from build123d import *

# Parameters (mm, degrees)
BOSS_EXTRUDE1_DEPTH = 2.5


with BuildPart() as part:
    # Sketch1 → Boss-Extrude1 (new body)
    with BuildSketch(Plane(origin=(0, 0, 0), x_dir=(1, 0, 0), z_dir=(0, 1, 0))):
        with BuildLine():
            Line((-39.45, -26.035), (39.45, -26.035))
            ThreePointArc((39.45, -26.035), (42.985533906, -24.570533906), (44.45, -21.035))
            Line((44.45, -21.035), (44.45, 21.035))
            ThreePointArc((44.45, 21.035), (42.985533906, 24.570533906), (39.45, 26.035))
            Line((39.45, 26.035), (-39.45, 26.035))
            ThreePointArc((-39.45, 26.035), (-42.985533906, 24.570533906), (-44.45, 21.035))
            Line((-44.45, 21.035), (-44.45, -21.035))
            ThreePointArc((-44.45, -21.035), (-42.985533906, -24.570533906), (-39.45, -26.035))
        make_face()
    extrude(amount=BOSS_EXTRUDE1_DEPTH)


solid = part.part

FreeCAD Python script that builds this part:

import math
import FreeCAD as App
import Part
import Sketcher
Q = App.Units.Quantity

doc = App.newDocument("Part")
params = doc.addObject("Spreadsheet::Sheet", "Params")
for row, (alias, value) in enumerate([
    ("sketch1_radius", "5 mm"),
    ("sketch1_width", "78.9 mm"),
    ("sketch1_height", "42.07 mm"),
    ("pad1_length", "2.5 mm"),
], start=1):
    params.set(f"A{row}", alias)
    params.set(f"B{row}", "=" + value)
    params.setAlias(f"B{row}", alias)

body = doc.addObject("PartDesign::Body", "Body")

sketch1 = body.newObject("Sketcher::SketchObject", "Sketch")
sketch1.AttachmentSupport = (doc.getObject("XZ_Plane"), [""])
sketch1.MapMode = "FlatFace"
sketch1.addGeometry([
    Part.LineSegment(App.Vector(-39.45, 26.035, 0), App.Vector(39.45, 26.035, 0)),
    Part.ArcOfCircle(Part.Circle(App.Vector(39.45, 21.035, 0), App.Vector(0, 0, 1), 5), math.radians(0), math.radians(90)),
    Part.LineSegment(App.Vector(44.45, 21.035, 0), App.Vector(44.45, -21.035, 0)),
    Part.ArcOfCircle(Part.Circle(App.Vector(39.45, -21.035, 0), App.Vector(0, 0, 1), 5), math.radians(-90), math.radians(0)),
    Part.LineSegment(App.Vector(39.45, -26.035, 0), App.Vector(-39.45, -26.035, 0)),
    Part.ArcOfCircle(Part.Circle(App.Vector(-39.45, -21.035, 0), App.Vector(0, 0, 1), 5), math.radians(180), math.radians(270)),
    Part.LineSegment(App.Vector(-44.45, -21.035, 0), App.Vector(-44.45, 21.035, 0)),
    Part.ArcOfCircle(Part.Circle(App.Vector(-39.45, 21.035, 0), App.Vector(0, 0, 1), 5), math.radians(90), math.radians(180)),
], False)
sketch1.addConstraint([
    Sketcher.Constraint("Tangent", 0, 2, 1, 2),
    Sketcher.Constraint("Tangent", 1, 1, 2, 1),
    Sketcher.Constraint("Tangent", 2, 2, 3, 2),
    Sketcher.Constraint("Tangent", 3, 1, 4, 1),
    Sketcher.Constraint("Tangent", 4, 2, 5, 2),
    Sketcher.Constraint("Tangent", 5, 1, 6, 1),
    Sketcher.Constraint("Tangent", 6, 2, 7, 2),
    Sketcher.Constraint("Tangent", 7, 1, 0, 1),
    Sketcher.Constraint("Horizontal", 0),
    Sketcher.Constraint("Vertical", 2),
    Sketcher.Constraint("Horizontal", 4),
    Sketcher.Constraint("Vertical", 6),
    Sketcher.Constraint("Equal", 1, 3),
    Sketcher.Constraint("Equal", 3, 5),
    Sketcher.Constraint("Equal", 5, 7),
    Sketcher.Constraint("Symmetric", 1, 3, 5, 3, -1, 1),
    Sketcher.Constraint("Radius", 1, Q("5 mm")),
    Sketcher.Constraint("DistanceX", 0, 1, 0, 2, Q("78.9 mm")),
    Sketcher.Constraint("DistanceY", 2, 2, 2, 1, Q("42.07 mm")),
])
sketch1.setExpression("Constraints[16]", "Params.sketch1_radius")
sketch1.setExpression("Constraints[17]", "Params.sketch1_width")
sketch1.setExpression("Constraints[18]", "Params.sketch1_height")
pad1 = body.newObject("PartDesign::Pad", "Pad")
pad1.Profile = sketch1
pad1.setExpression("Length", "Params.pad1_length")
pad1.Reversed = True

doc.recompute()
